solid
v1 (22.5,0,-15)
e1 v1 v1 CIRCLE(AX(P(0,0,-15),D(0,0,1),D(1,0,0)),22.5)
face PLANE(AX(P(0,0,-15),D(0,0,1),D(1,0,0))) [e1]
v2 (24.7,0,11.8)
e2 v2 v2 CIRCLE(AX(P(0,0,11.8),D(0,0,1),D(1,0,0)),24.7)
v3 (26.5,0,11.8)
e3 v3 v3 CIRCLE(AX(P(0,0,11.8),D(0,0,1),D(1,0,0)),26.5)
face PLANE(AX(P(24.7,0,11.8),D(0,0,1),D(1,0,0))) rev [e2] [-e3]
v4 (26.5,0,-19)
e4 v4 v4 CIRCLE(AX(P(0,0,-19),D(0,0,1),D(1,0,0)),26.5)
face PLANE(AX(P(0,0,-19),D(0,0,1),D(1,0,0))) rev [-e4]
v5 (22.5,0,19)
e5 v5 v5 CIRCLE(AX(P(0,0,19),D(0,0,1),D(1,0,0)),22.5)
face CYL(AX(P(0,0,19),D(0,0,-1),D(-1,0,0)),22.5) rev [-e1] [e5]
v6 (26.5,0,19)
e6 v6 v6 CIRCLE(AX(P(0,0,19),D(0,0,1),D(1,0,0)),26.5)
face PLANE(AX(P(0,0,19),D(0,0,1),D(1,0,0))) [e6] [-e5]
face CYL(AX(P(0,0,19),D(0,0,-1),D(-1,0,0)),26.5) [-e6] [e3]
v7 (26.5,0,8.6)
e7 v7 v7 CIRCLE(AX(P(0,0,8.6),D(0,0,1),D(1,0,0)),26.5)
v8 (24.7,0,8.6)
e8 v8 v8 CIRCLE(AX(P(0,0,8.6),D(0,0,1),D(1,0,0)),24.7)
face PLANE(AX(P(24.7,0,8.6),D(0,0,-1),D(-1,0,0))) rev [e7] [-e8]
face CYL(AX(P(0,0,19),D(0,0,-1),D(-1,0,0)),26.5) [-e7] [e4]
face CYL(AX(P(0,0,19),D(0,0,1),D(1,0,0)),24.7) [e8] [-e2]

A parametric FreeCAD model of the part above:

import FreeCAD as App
import Part
import Sketcher


def faces_at(feature, points):
    """Names of the faces that lie closest to the given points."""
    faces = feature.Shape.Faces
    near = lambda p: min(range(len(faces)), key=lambda i: faces[i].distToShape(Part.Vertex(*p))[0])
    return sorted({f"Face{near(p) + 1}" for p in points})


def add_polygon(sketch, points):
    """Adds a closed chain of lines whose ends are joined by coincident constraints."""
    first, n = sketch.GeometryCount, len(points)
    for a, b in zip(points, points[1:] + points[:1]):
        sketch.addGeometry(Part.LineSegment(App.Vector(*a, 0), App.Vector(*b, 0)), False)
    for i in range(n):
        sketch.addConstraint(Sketcher.Constraint("Coincident", first + i, 2, first + (i + 1) % n, 1))

doc = App.newDocument("Part")
body = doc.addObject("PartDesign::Body", "Body")

sketch1 = body.newObject("Sketcher::SketchObject", "Sketch")
sketch1.AttachmentSupport = (doc.getObject("XY_Plane"), [""])
sketch1.MapMode = "FlatFace"
sketch1.addGeometry(Part.Circle(App.Vector(0, 0, 0), App.Vector(0, 0, 1), 26), False)
sketch1.addConstraint([
    Sketcher.Constraint("Coincident", 0, 3, -1, 1),
    Sketcher.Constraint("Diameter", 0, 53.0),
])
pad1 = body.newObject("PartDesign::Pad", "Pad")
pad1.Profile = sketch1
pad1.Length = 38
pad1.Midplane = True
doc.recompute()

thickness = body.newObject("PartDesign::Thickness", "Thickness")
thickness.Base = (pad1, faces_at(pad1, [(0, 0, 19)]))
thickness.Value = 4
thickness.Reversed = True
thickness.Join = "Intersection"

sketch2 = body.newObject("Sketcher::SketchObject", "Sketch001")
sketch2.AttachmentSupport = (doc.getObject("XZ_Plane"), [""])
sketch2.MapMode = "FlatFace"
add_polygon(sketch2, [(24.7, 8.6), (24.7, 11.8), (26.5, 11.8), (26.5, 8.6)])
sketch2.addConstraint([
    Sketcher.Constraint("Vertical", 0),
    Sketcher.Constraint("Horizontal", 1),
    Sketcher.Constraint("Vertical", 2),
    Sketcher.Constraint("Horizontal", 3),
    Sketcher.Constraint("DistanceX", 1, 1, 1, 2, 1.8),
    Sketcher.Constraint("DistanceY", 0, 1, 0, 2, 3.2),
    Sketcher.Constraint("DistanceX", -1, 1, 0, 2, 24.7),
    Sketcher.Constraint("DistanceY", -1, 1, 0, 2, 11.8),
])
groove = body.newObject("PartDesign::Groove", "Groove")
groove.Profile = sketch2
groove.ReferenceAxis = (sketch2, ["V_Axis"])
groove.Angle = 360

doc.recompute()
